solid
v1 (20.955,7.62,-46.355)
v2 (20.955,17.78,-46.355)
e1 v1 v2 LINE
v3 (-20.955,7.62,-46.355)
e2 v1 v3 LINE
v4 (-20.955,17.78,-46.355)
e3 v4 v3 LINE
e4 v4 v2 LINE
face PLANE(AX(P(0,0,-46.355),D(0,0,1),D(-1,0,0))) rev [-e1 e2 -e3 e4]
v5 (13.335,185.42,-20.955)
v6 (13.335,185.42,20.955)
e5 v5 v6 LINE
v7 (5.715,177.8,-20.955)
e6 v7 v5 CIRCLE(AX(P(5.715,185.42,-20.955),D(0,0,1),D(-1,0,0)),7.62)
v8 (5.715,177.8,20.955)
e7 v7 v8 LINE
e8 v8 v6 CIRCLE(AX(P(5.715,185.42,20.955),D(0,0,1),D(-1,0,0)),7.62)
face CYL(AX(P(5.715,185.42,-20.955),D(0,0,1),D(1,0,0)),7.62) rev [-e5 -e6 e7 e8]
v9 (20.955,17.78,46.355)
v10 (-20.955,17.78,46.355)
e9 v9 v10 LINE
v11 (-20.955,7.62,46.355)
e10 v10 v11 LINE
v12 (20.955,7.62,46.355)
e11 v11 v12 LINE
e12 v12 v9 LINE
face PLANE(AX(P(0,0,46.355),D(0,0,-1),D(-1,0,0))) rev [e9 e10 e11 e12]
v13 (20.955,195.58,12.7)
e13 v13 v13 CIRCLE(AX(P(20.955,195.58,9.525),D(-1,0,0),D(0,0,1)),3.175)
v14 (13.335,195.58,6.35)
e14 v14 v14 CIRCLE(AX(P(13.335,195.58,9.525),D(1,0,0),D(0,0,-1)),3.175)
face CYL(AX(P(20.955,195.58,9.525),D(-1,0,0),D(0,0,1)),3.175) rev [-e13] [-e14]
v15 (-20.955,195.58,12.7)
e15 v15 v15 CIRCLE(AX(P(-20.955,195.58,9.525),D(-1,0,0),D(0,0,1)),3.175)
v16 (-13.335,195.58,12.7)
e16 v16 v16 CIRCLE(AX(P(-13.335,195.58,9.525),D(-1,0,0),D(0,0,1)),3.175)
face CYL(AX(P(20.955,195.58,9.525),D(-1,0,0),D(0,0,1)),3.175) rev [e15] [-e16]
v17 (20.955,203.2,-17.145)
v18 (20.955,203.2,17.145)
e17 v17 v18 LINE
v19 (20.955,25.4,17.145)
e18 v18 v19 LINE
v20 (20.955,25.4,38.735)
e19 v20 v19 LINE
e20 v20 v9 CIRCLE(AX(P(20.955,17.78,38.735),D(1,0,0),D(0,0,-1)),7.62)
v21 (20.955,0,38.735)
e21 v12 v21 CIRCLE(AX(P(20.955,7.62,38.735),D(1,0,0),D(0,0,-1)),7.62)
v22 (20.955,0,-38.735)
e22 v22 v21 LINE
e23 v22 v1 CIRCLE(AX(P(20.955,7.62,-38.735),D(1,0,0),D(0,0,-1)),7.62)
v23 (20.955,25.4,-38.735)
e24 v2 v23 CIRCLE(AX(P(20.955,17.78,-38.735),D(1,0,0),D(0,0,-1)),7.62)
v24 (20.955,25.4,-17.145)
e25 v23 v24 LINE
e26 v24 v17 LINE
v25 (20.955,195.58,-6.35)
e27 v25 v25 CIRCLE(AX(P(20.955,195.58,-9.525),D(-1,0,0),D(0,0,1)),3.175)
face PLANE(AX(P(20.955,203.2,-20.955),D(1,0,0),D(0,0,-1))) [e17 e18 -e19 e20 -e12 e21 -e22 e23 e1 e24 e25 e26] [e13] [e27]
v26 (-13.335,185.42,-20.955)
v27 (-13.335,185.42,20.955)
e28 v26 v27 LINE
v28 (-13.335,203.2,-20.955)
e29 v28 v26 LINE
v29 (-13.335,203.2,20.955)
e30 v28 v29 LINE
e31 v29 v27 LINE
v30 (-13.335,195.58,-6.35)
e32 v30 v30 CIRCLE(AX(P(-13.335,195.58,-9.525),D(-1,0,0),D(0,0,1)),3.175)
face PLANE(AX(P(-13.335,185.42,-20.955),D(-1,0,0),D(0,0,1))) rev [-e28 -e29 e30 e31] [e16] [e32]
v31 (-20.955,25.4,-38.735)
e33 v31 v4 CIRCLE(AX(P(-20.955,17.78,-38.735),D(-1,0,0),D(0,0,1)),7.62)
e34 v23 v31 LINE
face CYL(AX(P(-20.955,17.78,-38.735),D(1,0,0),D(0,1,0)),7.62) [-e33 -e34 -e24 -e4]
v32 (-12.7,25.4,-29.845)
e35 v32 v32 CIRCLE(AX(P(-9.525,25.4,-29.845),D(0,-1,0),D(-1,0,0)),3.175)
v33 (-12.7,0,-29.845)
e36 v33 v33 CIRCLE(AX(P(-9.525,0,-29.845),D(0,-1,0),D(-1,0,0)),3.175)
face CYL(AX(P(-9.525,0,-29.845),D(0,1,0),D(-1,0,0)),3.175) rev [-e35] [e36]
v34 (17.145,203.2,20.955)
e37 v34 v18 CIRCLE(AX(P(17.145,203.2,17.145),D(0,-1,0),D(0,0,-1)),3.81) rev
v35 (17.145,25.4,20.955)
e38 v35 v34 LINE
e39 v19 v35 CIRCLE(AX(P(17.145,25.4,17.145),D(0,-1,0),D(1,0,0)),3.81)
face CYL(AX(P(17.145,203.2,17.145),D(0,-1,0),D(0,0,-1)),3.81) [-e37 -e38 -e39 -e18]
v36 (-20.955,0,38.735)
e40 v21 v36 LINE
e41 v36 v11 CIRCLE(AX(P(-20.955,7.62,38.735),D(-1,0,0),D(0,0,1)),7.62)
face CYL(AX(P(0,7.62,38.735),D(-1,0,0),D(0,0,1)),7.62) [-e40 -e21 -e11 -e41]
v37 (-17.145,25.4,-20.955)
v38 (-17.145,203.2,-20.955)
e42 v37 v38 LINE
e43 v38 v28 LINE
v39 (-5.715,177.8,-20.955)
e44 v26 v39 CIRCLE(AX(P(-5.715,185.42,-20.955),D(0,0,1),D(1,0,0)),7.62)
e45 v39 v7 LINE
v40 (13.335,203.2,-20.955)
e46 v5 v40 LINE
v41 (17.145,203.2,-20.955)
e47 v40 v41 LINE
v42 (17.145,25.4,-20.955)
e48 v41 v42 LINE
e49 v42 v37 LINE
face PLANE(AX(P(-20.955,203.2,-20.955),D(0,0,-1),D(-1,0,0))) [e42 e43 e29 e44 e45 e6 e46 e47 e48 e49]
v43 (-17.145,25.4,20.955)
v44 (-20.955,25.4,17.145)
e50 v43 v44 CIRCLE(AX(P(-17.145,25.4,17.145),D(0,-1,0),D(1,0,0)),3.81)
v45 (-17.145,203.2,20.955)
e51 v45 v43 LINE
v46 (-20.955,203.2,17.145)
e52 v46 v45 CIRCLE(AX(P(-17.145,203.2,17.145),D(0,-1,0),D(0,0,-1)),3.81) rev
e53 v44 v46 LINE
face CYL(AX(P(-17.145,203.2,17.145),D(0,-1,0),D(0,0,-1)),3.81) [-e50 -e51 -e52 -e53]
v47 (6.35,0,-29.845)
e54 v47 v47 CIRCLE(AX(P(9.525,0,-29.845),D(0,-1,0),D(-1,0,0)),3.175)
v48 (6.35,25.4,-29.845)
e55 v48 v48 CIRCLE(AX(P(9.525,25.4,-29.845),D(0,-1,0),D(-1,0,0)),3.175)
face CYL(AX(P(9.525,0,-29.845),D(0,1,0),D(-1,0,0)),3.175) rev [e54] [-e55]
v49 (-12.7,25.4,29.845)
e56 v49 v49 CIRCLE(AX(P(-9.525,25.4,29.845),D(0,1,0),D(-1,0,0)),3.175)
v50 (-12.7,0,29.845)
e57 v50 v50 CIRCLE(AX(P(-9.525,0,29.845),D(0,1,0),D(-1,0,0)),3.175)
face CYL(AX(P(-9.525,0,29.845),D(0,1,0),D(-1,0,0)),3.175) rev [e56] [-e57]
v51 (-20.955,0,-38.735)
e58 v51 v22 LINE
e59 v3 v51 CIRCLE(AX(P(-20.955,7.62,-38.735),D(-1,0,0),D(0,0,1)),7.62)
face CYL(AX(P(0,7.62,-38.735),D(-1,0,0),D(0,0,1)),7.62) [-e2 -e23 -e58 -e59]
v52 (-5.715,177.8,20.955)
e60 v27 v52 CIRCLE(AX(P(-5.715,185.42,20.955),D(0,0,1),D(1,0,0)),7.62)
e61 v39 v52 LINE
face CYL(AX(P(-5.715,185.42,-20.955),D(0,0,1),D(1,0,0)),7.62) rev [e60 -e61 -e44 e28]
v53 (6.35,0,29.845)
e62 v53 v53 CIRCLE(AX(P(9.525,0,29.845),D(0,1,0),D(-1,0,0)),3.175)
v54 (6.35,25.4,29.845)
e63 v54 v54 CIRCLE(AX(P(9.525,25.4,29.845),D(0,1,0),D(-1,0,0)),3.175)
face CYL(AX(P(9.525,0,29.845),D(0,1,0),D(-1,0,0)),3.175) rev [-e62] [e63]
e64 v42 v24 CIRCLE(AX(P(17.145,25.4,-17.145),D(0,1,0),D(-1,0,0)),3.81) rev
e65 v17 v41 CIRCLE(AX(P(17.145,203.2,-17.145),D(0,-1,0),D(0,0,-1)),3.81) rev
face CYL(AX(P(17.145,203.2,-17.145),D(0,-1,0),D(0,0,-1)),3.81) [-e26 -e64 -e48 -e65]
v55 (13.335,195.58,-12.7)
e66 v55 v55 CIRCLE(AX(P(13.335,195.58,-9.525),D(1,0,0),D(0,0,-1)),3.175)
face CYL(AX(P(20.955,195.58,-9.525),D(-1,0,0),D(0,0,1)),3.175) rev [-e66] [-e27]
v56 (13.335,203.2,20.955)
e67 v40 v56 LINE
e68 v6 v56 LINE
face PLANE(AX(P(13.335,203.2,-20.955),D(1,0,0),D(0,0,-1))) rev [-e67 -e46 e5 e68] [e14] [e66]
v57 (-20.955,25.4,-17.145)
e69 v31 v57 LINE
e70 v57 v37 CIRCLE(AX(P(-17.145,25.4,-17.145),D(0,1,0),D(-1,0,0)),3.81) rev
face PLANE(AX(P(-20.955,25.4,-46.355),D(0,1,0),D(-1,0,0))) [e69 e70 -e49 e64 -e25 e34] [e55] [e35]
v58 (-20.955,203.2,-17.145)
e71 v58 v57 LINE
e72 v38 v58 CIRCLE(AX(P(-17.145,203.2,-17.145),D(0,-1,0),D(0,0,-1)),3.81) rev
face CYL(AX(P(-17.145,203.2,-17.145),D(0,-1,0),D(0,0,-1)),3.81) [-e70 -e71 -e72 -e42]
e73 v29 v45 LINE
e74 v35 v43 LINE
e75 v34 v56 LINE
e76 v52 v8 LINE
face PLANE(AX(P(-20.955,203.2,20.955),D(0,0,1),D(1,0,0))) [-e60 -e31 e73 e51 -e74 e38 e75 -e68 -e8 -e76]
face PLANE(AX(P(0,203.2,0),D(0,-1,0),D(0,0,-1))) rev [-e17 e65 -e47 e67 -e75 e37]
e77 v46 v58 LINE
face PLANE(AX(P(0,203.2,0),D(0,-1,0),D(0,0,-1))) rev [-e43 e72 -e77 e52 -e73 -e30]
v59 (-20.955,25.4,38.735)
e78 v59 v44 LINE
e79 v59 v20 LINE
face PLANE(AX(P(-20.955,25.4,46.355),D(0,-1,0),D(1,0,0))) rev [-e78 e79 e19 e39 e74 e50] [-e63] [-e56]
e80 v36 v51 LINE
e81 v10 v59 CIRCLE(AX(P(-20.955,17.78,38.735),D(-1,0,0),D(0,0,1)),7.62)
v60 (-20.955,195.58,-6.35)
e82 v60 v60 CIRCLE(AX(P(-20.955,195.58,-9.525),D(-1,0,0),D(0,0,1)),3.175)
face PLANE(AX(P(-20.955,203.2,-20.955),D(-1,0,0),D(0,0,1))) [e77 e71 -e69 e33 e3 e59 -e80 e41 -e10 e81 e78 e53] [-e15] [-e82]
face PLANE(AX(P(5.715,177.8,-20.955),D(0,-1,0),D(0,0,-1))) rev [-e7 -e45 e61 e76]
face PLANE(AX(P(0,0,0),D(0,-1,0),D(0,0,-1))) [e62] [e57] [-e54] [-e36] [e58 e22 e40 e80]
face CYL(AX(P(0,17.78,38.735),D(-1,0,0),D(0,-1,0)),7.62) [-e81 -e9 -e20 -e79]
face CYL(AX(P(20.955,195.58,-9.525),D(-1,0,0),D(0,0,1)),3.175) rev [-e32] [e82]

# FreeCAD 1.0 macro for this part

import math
import FreeCAD as App
import Part
import Sketcher

V = App.Vector
Q = App.Units.Quantity


def edges_at(feature, points):
    """Names of the edges that pass closest to the given points."""
    edges = feature.Shape.Edges
    near = lambda p: min(range(len(edges)), key=lambda i: edges[i].distToShape(Part.Vertex(*p))[0])
    return sorted({f"Edge{near(p) + 1}" for p in points})

doc = App.newDocument("Part")
body = doc.addObject("PartDesign::Body", "Body")

sketch1 = doc.addObject("Sketcher::SketchObject", "Sketch")
body.addObject(sketch1)
sketch1.AttachmentSupport = (doc.XZ_Plane, [""])
sketch1.MapMode = "FlatFace"
sketch1.addGeometry(Part.LineSegment(V(-13, -13, 0), V(-13, 13, 0)), False)
sketch1.addGeometry(Part.LineSegment(V(-13, 13, 0), V(13, 13, 0)), False)
sketch1.addGeometry(Part.LineSegment(V(13, 13, 0), V(13, -13, 0)), False)
sketch1.addGeometry(Part.LineSegment(V(13, -13, 0), V(-13, -13, 0)), False)
sketch1.addConstraint(Sketcher.Constraint("Coincident", 0, 2, 1, 1))
sketch1.addConstraint(Sketcher.Constraint("Coincident", 1, 2, 2, 1))
sketch1.addConstraint(Sketcher.Constraint("Coincident", 2, 2, 3, 1))
sketch1.addConstraint(Sketcher.Constraint("Coincident", 3, 2, 0, 1))
sketch1.addConstraint(Sketcher.Constraint("Vertical", 0))
sketch1.addConstraint(Sketcher.Constraint("Horizontal", 1))
sketch1.addConstraint(Sketcher.Constraint("Vertical", 2))
sketch1.addConstraint(Sketcher.Constraint("Horizontal", 3))
sketch1.addConstraint(Sketcher.Constraint("Symmetric", 0, 2, 2, 2, -1, 1))
sketch1.addConstraint(Sketcher.Constraint("Equal", 3, 0))
sketch1.addConstraint(Sketcher.Constraint("DistanceX", 1, 1, 1, 2, Q("1.05 in")))
pad1 = doc.addObject("PartDesign::Pad", "Pad")
body.addObject(pad1)
pad1.Profile = sketch1
pad1.Length = Q("0.2 in")
pad1.Reversed = True

sketch2 = doc.addObject("Sketcher::SketchObject", "Sketch001")
body.addObject(sketch2)
sketch2.AttachmentSupport = (doc.XZ_Plane, [""])
sketch2.MapMode = "FlatFace"
sketch2.addGeometry(Part.LineSegment(V(-21, 21, 0), V(-21, -21, 0)), False)
sketch2.addGeometry(Part.LineSegment(V(-21, -21, 0), V(21, -21, 0)), False)
sketch2.addGeometry(Part.LineSegment(V(21, -21, 0), V(21, 21, 0)), False)
sketch2.addGeometry(Part.LineSegment(V(21, 21, 0), V(-21, 21, 0)), False)
sketch2.addConstraint(Sketcher.Constraint("Coincident", 0, 2, 1, 1))
sketch2.addConstraint(Sketcher.Constraint("Coincident", 1, 2, 2, 1))
sketch2.addConstraint(Sketcher.Constraint("Coincident", 2, 2, 3, 1))
sketch2.addConstraint(Sketcher.Constraint("Coincident", 3, 2, 0, 1))
sketch2.addConstraint(Sketcher.Constraint("Vertical", 0))
sketch2.addConstraint(Sketcher.Constraint("Horizontal", 1))
sketch2.addConstraint(Sketcher.Constraint("Vertical", 2))
sketch2.addConstraint(Sketcher.Constraint("Horizontal", 3))
sketch2.addConstraint(Sketcher.Constraint("Symmetric", 0, 2, 2, 2, -1, 1))
sketch2.addConstraint(Sketcher.Constraint("Equal", 3, 0))
sketch2.addConstraint(Sketcher.Constraint("DistanceX", 1, 1, 1, 2, Q("1.65 in")))
pad2 = doc.addObject("PartDesign::Pad", "Pad001")
body.addObject(pad2)
pad2.Profile = sketch2
pad2.Length = Q("8 in")
pad2.Reversed = True

sketch3 = doc.addObject("Sketcher::SketchObject", "Sketch002")
body.addObject(sketch3)
sketch3.AttachmentSupport = (doc.XY_Plane, [""])
sketch3.MapMode = "FlatFace"
sketch3.AttachmentOffset = App.Placement(V(0, 0, 0.825 * 25.4), App.Rotation())
sketch3.addGeometry(Part.LineSegment(V(-13, 203, 0), V(-13, 185, 0)), False)
sketch3.addGeometry(Part.ArcOfCircle(Part.Circle(V(-6, 185, 0), V(0, 0, 1), 8), math.radians(180), math.radians(270)), False)
sketch3.addGeometry(Part.LineSegment(V(-6, 178, 0), V(6, 178, 0)), False)
sketch3.addGeometry(Part.ArcOfCircle(Part.Circle(V(6, 185, 0), V(0, 0, 1), 8), math.radians(-90), math.radians(0)), False)
sketch3.addGeometry(Part.LineSegment(V(13, 185, 0), V(13, 203, 0)), False)
sketch3.addGeometry(Part.LineSegment(V(13, 203, 0), V(-13, 203, 0)), False)
sketch3.addConstraint(Sketcher.Constraint("Tangent", 0, 2, 1, 1))
sketch3.addConstraint(Sketcher.Constraint("Tangent", 1, 2, 2, 1))
sketch3.addConstraint(Sketcher.Constraint("Tangent", 2, 2, 3, 1))
sketch3.addConstraint(Sketcher.Constraint("Tangent", 3, 2, 4, 1))
sketch3.addConstraint(Sketcher.Constraint("Coincident", 4, 2, 5, 1))
sketch3.addConstraint(Sketcher.Constraint("Coincident", 5, 2, 0, 1))
sketch3.addConstraint(Sketcher.Constraint("Vertical", 0))
sketch3.addConstraint(Sketcher.Constraint("Horizontal", 2))
sketch3.addConstraint(Sketcher.Constraint("Vertical", 4))
sketch3.addConstraint(Sketcher.Constraint("Horizontal", 5))
sketch3.addConstraint(Sketcher.Constraint("Equal", 1, 3))
sketch3.addConstraint(Sketcher.Constraint("Radius", 1, Q("0.3 in")))
sketch3.addConstraint(Sketcher.Constraint("DistanceY", 0, 2, 0, 1, Q("0.7 in")))
sketch3.addConstraint(Sketcher.Constraint("DistanceY", -1, 1, 1, 2, Q("7 in")))
sketch3.addConstraint(Sketcher.Constraint("DistanceX", 2, 1, 2, 2, Q("0.45 in")))
sketch3.addConstraint(Sketcher.Constraint("DistanceX", 1, 3, -1, 1, Q("0.225 in")))
pocket1 = doc.addObject("PartDesign::Pocket", "Pocket")
body.addObject(pocket1)
pocket1.Profile = sketch3
pocket1.Type = "ThroughAll"

sketch4 = doc.addObject("Sketcher::SketchObject", "Sketch003")
body.addObject(sketch4)
sketch4.AttachmentSupport = (doc.YZ_Plane, [""])
sketch4.MapMode = "FlatFace"
sketch4.AttachmentOffset = App.Placement(V(0, 0, -0.825 * 25.4), App.Rotation())
sketch4.addGeometry(Part.Circle(V(195.6, -9.5, 0), V(0, 0, 1), 3.2), False)
sketch4.addGeometry(Part.Circle(V(195.6, 9.5, 0), V(0, 0, 1), 3.2), False)
sketch4.addConstraint(Sketcher.Constraint("Equal", 0, 1))
sketch4.addConstraint(Sketcher.Constraint("Symmetric", 0, 3, 1, 3, -1))
sketch4.addConstraint(Sketcher.Constraint("Diameter", 0, Q("0.25 in")))
sketch4.addConstraint(Sketcher.Constraint("DistanceX", -1, 1, 0, 3, Q("7.7 in")))
sketch4.addConstraint(Sketcher.Constraint("DistanceY", 0, 3, 1, 3, Q("0.75 in")))
pocket2 = doc.addObject("PartDesign::Pocket", "Pocket001")
body.addObject(pocket2)
pocket2.Profile = sketch4
pocket2.Type = "ThroughAll"
pocket2.Reversed = True

sketch5 = doc.addObject("Sketcher::SketchObject", "Sketch004")
body.addObject(sketch5)
sketch5.AttachmentSupport = (doc.XY_Plane, [""])
sketch5.MapMode = "FlatFace"
sketch5.AttachmentOffset = App.Placement(V(0, 0, 0.825 * 25.4), App.Rotation())
sketch5.addGeometry(Part.LineSegment(V(-21, 25, 0), V(-21, 0, 0)), False)
sketch5.addGeometry(Part.LineSegment(V(-21, 0, 0), V(21, 0, 0)), False)
sketch5.addGeometry(Part.LineSegment(V(21, 0, 0), V(21, 25, 0)), False)
sketch5.addGeometry(Part.LineSegment(V(21, 25, 0), V(-21, 25, 0)), False)
sketch5.addConstraint(Sketcher.Constraint("Coincident", 0, 2, 1, 1))
sketch5.addConstraint(Sketcher.Constraint("Coincident", 1, 2, 2, 1))
sketch5.addConstraint(Sketcher.Constraint("Coincident", 2, 2, 3, 1))
sketch5.addConstraint(Sketcher.Constraint("Coincident", 3, 2, 0, 1))
sketch5.addConstraint(Sketcher.Constraint("Vertical", 0))
sketch5.addConstraint(Sketcher.Constraint("Horizontal", 1))
sketch5.addConstraint(Sketcher.Constraint("Vertical", 2))
sketch5.addConstraint(Sketcher.Constraint("Horizontal", 3))
sketch5.addConstraint(Sketcher.Constraint("Symmetric", 0, 2, 1, 2, -1, 1))
sketch5.addConstraint(Sketcher.Constraint("DistanceY", 0, 2, 0, 1, Q("1 in")))
sketch5.addConstraint(Sketcher.Constraint("DistanceX", 1, 1, 1, 2, Q("1.65 in")))
pad3 = doc.addObject("PartDesign::Pad", "Pad002")
body.addObject(pad3)
pad3.Profile = sketch5
pad3.Length = Q("1 in")

sketch6 = doc.addObject("Sketcher::SketchObject", "Sketch005")
body.addObject(sketch6)
sketch6.AttachmentSupport = (doc.XZ_Plane, [""])
sketch6.MapMode = "FlatFace"
sketch6.AttachmentOffset = App.Placement(V(0, 0, -1 * 25.4), App.Rotation())
sketch6.addGeometry(Part.Circle(V(-9.5, 29.8, 0), V(0, 0, 1), 3.2), False)
sketch6.addGeometry(Part.Circle(V(9.5, 29.8, 0), V(0, 0, 1), 3.2), False)
sketch6.addConstraint(Sketcher.Constraint("Equal", 0, 1))
sketch6.addConstraint(Sketcher.Constraint("Symmetric", 0, 3, 1, 3, -2))
sketch6.addConstraint(Sketcher.Constraint("Diameter", 0, Q("0.25 in")))
sketch6.addConstraint(Sketcher.Constraint("DistanceX", 0, 3, 1, 3, Q("0.75 in")))
sketch6.addConstraint(Sketcher.Constraint("DistanceY", -1, 1, 0, 3, Q("1.175 in")))
pocket3 = doc.addObject("PartDesign::Pocket", "Pocket002")
body.addObject(pocket3)
pocket3.Profile = sketch6
pocket3.Type = "ThroughAll"
pocket3.Reversed = True
doc.recompute()

mirrored = doc.addObject("PartDesign::Mirrored", "Mirrored")
body.addObject(mirrored)
mirrored.Originals = [pad3, pocket3]
mirrored.MirrorPlane = (doc.XY_Plane, [""])
body.Tip = mirrored
doc.recompute()

fillet = doc.addObject("PartDesign::Fillet", "Fillet")
body.addObject(fillet)
fillet.Base = (mirrored, edges_at(mirrored, [
    (20.955, 114.3, -20.955),
    (-20.955, 114.3, -20.955),
    (-20.955, 114.3, 20.955),
    (20.955, 114.3, 20.955),
]))
fillet.Radius = Q("0.15 in")
doc.recompute()

fillet2 = doc.addObject("PartDesign::Fillet", "Fillet001")
body.addObject(fillet2)
fillet2.Base = (fillet, edges_at(fillet, [
    (0, 0, 46.355),
    (0, 25.4, 46.355),
    (0, 25.4, -46.355),
    (0, 0, -46.355),
]))
fillet2.Radius = Q("0.3 in")

doc.recompute()
